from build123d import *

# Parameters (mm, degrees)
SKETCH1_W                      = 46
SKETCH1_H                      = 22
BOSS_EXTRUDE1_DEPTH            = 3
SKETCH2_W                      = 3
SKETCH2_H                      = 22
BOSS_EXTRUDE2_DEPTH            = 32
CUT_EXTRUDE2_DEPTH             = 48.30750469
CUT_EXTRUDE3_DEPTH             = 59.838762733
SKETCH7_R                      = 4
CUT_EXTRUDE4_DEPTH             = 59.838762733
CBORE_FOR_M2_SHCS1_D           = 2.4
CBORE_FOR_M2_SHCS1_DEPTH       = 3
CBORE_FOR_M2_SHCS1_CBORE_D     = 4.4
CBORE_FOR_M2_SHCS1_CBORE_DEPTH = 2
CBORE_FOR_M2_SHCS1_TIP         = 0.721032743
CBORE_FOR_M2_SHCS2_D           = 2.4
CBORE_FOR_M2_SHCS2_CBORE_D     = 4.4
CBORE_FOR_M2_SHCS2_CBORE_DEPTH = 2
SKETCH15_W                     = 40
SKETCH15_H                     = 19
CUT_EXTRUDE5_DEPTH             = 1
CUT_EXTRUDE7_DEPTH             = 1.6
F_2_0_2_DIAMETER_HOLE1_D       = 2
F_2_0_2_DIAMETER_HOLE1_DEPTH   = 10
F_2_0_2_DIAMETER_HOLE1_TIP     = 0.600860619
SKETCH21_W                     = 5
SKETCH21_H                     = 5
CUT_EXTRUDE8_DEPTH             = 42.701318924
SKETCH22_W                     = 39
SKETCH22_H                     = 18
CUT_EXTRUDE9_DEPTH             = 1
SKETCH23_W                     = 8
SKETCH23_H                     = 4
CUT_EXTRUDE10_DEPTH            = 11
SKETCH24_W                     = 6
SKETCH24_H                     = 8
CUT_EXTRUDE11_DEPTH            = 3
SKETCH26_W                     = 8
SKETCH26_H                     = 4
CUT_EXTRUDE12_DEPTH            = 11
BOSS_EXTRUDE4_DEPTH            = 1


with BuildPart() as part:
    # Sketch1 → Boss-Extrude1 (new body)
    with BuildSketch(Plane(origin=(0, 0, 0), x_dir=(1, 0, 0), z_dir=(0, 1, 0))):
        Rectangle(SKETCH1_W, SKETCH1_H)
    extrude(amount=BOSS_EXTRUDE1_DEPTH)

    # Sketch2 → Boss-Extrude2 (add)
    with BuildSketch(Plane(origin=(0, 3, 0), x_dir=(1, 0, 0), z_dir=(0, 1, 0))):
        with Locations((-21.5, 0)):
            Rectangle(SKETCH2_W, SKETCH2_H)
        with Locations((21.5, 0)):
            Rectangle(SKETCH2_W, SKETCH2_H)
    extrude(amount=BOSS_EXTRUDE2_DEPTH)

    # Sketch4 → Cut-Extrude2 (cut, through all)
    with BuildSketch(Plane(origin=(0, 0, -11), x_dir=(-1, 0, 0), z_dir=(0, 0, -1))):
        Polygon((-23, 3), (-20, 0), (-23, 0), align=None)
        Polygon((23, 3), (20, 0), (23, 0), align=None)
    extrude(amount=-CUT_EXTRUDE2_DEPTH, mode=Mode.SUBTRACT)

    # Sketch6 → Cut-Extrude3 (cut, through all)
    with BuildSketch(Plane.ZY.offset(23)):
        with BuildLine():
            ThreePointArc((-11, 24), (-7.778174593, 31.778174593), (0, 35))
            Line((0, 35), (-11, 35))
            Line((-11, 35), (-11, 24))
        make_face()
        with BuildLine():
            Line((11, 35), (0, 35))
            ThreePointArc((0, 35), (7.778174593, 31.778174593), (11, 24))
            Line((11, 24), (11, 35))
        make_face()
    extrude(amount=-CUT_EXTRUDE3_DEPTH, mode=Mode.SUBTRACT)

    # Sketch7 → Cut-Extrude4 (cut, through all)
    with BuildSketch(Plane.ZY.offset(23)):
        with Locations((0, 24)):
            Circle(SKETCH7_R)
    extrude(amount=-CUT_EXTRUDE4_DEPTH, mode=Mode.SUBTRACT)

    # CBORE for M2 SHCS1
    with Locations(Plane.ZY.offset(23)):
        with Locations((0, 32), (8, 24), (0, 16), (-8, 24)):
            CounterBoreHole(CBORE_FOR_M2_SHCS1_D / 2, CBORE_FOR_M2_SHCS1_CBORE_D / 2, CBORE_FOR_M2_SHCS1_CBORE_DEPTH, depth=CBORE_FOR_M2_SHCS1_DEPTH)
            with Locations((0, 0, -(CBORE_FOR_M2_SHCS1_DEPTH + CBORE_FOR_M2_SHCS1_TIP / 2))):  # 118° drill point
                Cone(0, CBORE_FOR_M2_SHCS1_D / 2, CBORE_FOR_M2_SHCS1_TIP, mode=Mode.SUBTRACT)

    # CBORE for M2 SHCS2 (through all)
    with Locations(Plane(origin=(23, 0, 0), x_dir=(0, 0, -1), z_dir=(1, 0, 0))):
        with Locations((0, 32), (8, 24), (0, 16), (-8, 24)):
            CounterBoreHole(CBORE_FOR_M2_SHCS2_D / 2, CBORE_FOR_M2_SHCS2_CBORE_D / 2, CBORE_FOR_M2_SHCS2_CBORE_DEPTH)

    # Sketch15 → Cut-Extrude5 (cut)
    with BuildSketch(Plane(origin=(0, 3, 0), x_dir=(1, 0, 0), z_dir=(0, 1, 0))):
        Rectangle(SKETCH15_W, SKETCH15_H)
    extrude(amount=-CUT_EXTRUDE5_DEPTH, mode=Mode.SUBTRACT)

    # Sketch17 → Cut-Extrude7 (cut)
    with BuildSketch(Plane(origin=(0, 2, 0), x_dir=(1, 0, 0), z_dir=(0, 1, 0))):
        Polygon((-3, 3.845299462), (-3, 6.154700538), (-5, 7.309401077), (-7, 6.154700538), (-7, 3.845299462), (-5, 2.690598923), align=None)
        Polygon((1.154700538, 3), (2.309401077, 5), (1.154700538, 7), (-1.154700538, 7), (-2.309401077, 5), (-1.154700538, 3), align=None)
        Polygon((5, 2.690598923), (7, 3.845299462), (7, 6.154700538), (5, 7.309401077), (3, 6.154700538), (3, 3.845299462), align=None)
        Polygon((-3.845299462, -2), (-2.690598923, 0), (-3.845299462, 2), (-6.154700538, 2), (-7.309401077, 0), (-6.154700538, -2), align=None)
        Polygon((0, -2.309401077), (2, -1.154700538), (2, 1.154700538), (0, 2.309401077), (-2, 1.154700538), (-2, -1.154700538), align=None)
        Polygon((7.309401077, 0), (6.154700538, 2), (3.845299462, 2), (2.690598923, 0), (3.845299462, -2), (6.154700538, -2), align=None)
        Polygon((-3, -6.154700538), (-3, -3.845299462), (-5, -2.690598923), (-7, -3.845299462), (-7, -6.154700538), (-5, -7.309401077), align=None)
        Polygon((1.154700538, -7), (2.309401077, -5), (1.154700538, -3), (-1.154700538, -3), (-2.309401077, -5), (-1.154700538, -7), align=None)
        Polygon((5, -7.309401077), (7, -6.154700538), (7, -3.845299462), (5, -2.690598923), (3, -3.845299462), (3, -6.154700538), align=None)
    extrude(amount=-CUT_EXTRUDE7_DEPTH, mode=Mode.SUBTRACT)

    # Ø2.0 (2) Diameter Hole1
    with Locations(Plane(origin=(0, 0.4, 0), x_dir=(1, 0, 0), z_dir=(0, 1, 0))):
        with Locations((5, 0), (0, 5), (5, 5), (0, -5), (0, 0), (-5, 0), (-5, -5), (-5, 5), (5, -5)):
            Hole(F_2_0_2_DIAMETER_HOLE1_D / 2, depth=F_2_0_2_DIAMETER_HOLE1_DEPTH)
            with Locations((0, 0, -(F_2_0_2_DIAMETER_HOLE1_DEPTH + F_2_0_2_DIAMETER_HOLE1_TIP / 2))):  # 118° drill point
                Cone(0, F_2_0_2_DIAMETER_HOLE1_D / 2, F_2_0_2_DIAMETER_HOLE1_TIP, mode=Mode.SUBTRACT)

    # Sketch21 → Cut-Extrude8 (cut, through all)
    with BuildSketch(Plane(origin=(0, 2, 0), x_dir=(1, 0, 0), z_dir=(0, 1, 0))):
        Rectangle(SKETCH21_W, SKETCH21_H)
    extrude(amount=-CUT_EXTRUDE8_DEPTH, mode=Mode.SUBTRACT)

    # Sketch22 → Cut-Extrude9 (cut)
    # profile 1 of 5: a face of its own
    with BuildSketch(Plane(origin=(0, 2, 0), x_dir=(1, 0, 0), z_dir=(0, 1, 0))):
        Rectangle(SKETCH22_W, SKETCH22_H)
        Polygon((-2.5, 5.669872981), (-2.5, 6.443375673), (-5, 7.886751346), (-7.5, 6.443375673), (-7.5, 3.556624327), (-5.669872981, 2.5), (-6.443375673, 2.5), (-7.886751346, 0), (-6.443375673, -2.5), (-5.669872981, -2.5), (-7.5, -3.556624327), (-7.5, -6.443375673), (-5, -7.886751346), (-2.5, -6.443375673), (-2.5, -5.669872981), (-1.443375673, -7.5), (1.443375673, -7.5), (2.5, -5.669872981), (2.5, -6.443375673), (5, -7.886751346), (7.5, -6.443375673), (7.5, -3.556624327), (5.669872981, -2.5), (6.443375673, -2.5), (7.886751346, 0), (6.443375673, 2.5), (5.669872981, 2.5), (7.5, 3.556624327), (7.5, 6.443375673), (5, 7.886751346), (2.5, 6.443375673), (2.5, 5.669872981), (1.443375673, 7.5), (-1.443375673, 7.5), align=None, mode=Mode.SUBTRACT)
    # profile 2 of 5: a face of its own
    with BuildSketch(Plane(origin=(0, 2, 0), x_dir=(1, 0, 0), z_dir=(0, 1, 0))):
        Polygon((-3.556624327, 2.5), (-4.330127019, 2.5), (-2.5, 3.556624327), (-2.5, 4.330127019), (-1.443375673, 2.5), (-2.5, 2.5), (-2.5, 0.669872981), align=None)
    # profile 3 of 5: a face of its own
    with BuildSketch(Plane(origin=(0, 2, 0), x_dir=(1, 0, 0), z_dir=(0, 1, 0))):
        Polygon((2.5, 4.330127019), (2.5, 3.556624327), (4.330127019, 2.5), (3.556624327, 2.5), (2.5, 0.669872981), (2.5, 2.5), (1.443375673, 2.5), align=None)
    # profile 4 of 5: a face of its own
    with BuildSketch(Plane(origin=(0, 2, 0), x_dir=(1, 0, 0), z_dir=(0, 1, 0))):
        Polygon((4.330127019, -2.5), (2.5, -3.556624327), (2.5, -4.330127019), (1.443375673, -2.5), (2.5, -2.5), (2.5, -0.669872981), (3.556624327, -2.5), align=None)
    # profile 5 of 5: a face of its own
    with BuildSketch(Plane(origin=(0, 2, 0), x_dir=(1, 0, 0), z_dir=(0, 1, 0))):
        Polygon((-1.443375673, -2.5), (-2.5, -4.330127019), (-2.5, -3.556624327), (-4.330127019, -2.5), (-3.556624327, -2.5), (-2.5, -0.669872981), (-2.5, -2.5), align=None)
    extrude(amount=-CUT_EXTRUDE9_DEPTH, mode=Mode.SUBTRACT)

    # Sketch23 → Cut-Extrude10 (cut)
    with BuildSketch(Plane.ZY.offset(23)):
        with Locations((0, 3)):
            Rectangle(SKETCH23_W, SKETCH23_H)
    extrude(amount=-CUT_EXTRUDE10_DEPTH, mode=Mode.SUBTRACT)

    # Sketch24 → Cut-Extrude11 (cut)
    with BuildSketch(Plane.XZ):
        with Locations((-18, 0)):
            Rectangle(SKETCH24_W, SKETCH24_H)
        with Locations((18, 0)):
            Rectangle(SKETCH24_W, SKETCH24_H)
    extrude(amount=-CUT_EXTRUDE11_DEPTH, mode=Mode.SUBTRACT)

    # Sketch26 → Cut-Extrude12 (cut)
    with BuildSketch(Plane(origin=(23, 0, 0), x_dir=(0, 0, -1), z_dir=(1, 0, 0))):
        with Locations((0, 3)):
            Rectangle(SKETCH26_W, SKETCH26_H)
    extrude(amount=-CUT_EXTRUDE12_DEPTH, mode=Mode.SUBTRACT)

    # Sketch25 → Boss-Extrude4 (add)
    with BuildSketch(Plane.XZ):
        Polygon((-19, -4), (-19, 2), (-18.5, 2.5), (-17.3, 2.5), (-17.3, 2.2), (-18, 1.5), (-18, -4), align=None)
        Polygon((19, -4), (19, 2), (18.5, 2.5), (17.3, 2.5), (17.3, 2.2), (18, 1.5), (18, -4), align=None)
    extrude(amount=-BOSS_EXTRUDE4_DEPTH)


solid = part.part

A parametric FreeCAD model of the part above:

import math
import FreeCAD as App
import Part
import Sketcher

V = App.Vector
Q = App.Units.Quantity


def add_polygon(sketch, points):
    """Adds a closed chain of lines whose ends are joined by coincident constraints."""
    first, n = sketch.GeometryCount, len(points)
    for a, b in zip(points, points[1:] + points[:1]):
        sketch.addGeometry(Part.LineSegment(App.Vector(*a, 0), App.Vector(*b, 0)), False)
    for i in range(n):
        sketch.addConstraint(Sketcher.Constraint("Coincident", first + i, 2, first + (i + 1) % n, 1))

doc = App.newDocument("Part")
body = doc.addObject("PartDesign::Body", "Body")

# Sketch on XZ plane
sketch1 = body.newObject("Sketcher::SketchObject", "Sketch")
sketch1.AttachmentSupport = (doc.getObject("XZ_Plane"), [""])
sketch1.MapMode = "FlatFace"
add_polygon(sketch1, [(-23, -11), (-23, 11), (23, 11), (23, -11)])  # lines 0-3
sketch1.addConstraint([
    Sketcher.Constraint("Vertical", 0),
    Sketcher.Constraint("Horizontal", 1),
    Sketcher.Constraint("Vertical", 2),
    Sketcher.Constraint("Horizontal", 3),
    Sketcher.Constraint("Symmetric", 0, 2, 2, 2, -1, 1),
    Sketcher.Constraint("DistanceX", 1, 1, 1, 2, Q("46 mm")),
    Sketcher.Constraint("DistanceY", 0, 1, 0, 2, Q("22 mm")),
])
pad1 = body.newObject("PartDesign::Pad", "Pad")
pad1.Profile = sketch1
pad1.Length = 3
pad1.Reversed = True

# Sketch on XZ plane
sketch2 = body.newObject("Sketcher::SketchObject", "Sketch001")
sketch2.AttachmentSupport = (doc.getObject("XZ_Plane"), [""])
sketch2.MapMode = "FlatFace"
sketch2.AttachmentOffset = App.Placement(V(0, 0, -3), App.Rotation())
add_polygon(sketch2, [(-23, -11), (-23, 11), (-20, 11), (-20, -11)])  # lines 0-3
add_polygon(sketch2, [(20, -11), (20, 11), (23, 11), (23, -11)])  # lines 4-7
sketch2.addConstraint([
    Sketcher.Constraint("Vertical", 0),
    Sketcher.Constraint("Horizontal", 1),
    Sketcher.Constraint("Vertical", 2),
    Sketcher.Constraint("Horizontal", 3),
    Sketcher.Constraint("Vertical", 4),
    Sketcher.Constraint("Horizontal", 5),
    Sketcher.Constraint("Vertical", 6),
    Sketcher.Constraint("Horizontal", 7),
    Sketcher.Constraint("Symmetric", 2, 2, 4, 2, -1, 1),
    Sketcher.Constraint("Symmetric", 0, 2, 6, 2, -1, 1),
    Sketcher.Constraint("Horizontal", 1, 2, 4, 2),
    Sketcher.Constraint("DistanceX", 1, 1, 1, 2, Q("3 mm")),
    Sketcher.Constraint("DistanceY", 0, 1, 0, 2, Q("22 mm")),
    Sketcher.Constraint("DistanceX", 0, 2, -1, 1, Q("23 mm")),
])
pad2 = body.newObject("PartDesign::Pad", "Pad001")
pad2.Profile = sketch2
pad2.Length = 32
pad2.Reversed = True

# Sketch on XY plane
sketch3 = body.newObject("Sketcher::SketchObject", "Sketch002")
sketch3.AttachmentSupport = (doc.getObject("XY_Plane"), [""])
sketch3.MapMode = "FlatFace"
sketch3.AttachmentOffset = App.Placement(V(0, 0, -11), App.Rotation())
add_polygon(sketch3, [(20, 0), (23, 3), (23, 0)])  # lines 0-2
add_polygon(sketch3, [(-23, 3), (-20, 0), (-23, 0)])  # lines 3-5
sketch3.addConstraint([
    Sketcher.Constraint("Vertical", 1),
    Sketcher.Constraint("Horizontal", 2),
    Sketcher.Constraint("Horizontal", 4),
    Sketcher.Constraint("Vertical", 5),
    Sketcher.Constraint("Symmetric", 2, 2, 3, 2, -1, 1),
    Sketcher.Constraint("Symmetric", 1, 2, 4, 2, -2),
    Sketcher.Constraint("Perpendicular", 0, 3),
    Sketcher.Constraint("Horizontal", 0, 2, 5, 2),
    Sketcher.Constraint("DistanceX", 2, 2, 2, 1, Q("3 mm")),
    Sketcher.Constraint("DistanceX", -1, 1, 0, 2, Q("23 mm")),
])
pocket1 = body.newObject("PartDesign::Pocket", "Pocket")
pocket1.Profile = sketch3
pocket1.Type = "ThroughAll"
pocket1.Reversed = True

# Sketch on YZ plane
sketch4 = body.newObject("Sketcher::SketchObject", "Sketch003")
sketch4.AttachmentSupport = (doc.getObject("YZ_Plane"), [""])
sketch4.MapMode = "FlatFace"
sketch4.AttachmentOffset = App.Placement(V(0, 0, -23), App.Rotation())
sketch4.addGeometry([
    Part.ArcOfCircle(Part.Circle(V(24, 0, 0), V(0, 0, 1), 11), math.radians(-90), math.radians(0)),  # 0
    Part.LineSegment(V(35, 0, 0), V(35, -11, 0)),  # 1
    Part.LineSegment(V(35, -11, 0), V(24, -11, 0)),  # 2
    Part.LineSegment(V(35, 11, 0), V(35, 0, 0)),  # 3
    Part.ArcOfCircle(Part.Circle(V(24, 0, 0), V(0, 0, 1), 11), math.radians(0), math.radians(90)),  # 4
    Part.LineSegment(V(24, 11, 0), V(35, 11, 0)),  # 5
], False)
sketch4.addConstraint([
    Sketcher.Constraint("Tangent", 0, 2, 1, 1),
    Sketcher.Constraint("Coincident", 1, 2, 2, 1),
    Sketcher.Constraint("Tangent", 2, 2, 0, 1),
    Sketcher.Constraint("Tangent", 3, 2, 4, 1),
    Sketcher.Constraint("Tangent", 4, 2, 5, 1),
    Sketcher.Constraint("Coincident", 5, 2, 3, 1),
    Sketcher.Constraint("Vertical", 1),
    Sketcher.Constraint("Horizontal", 2),
    Sketcher.Constraint("Vertical", 3),
    Sketcher.Constraint("Horizontal", 5),
    Sketcher.Constraint("Coincident", 4, 3, 0, 3),
    Sketcher.Constraint("Equal", 0, 4),
    Sketcher.Constraint("PointOnObject", 0, 3, -1),
    Sketcher.Constraint("Radius", 0, Q("11 mm")),
    Sketcher.Constraint("DistanceX", -1, 1, 0, 3, Q("24 mm")),
])
pocket2 = body.newObject("PartDesign::Pocket", "Pocket001")
pocket2.Profile = sketch4
pocket2.Type = "ThroughAll"
pocket2.Reversed = True

# Sketch on YZ plane
sketch5 = body.newObject("Sketcher::SketchObject", "Sketch004")
sketch5.AttachmentSupport = (doc.getObject("YZ_Plane"), [""])
sketch5.MapMode = "FlatFace"
sketch5.AttachmentOffset = App.Placement(V(0, 0, -23), App.Rotation())
sketch5.addGeometry(Part.Circle(V(24, 0, 0), V(0, 0, 1), 4), False)
sketch5.addConstraint([
    Sketcher.Constraint("PointOnObject", 0, 3, -1),
    Sketcher.Constraint("Diameter", 0, Q("8 mm")),
    Sketcher.Constraint("DistanceX", -1, 1, 0, 3, Q("24 mm")),
])
pocket3 = body.newObject("PartDesign::Pocket", "Pocket002")
pocket3.Profile = sketch5
pocket3.Type = "ThroughAll"
pocket3.Reversed = True

# Sketch on YZ plane
sketch6 = body.newObject("Sketcher::SketchObject", "Sketch005")
sketch6.AttachmentSupport = (doc.getObject("YZ_Plane"), [""])
sketch6.MapMode = "FlatFace"
sketch6.AttachmentOffset = App.Placement(V(0, 0, -23), App.Rotation())
sketch6.addGeometry([
    Part.Circle(V(32, 0, 0), V(0, 0, 1), 1.2),
    Part.Circle(V(24, 8, 0), V(0, 0, 1), 1.2),
    Part.Circle(V(16, 0, 0), V(0, 0, 1), 1.2),
    Part.Circle(V(24, -8, 0), V(0, 0, 1), 1.2),
], False)
sketch6.addConstraint([
    Sketcher.Constraint("Equal", 0, 1),
    Sketcher.Constraint("Equal", 1, 2),
    Sketcher.Constraint("Equal", 2, 3),
    Sketcher.Constraint("Symmetric", 1, 3, 3, 3, -1),
    Sketcher.Constraint("PointOnObject", 0, 3, -1),
    Sketcher.Constraint("PointOnObject", 2, 3, -1),
    Sketcher.Constraint("Diameter", 0, Q("2.4 mm")),
    Sketcher.Constraint("DistanceX", -1, 1, 0, 3, Q("32 mm")),
    Sketcher.Constraint("DistanceX", -1, 1, 1, 3, Q("24 mm")),
    Sketcher.Constraint("DistanceY", -1, 1, 1, 3, Q("8 mm")),
    Sketcher.Constraint("DistanceX", -1, 1, 2, 3, Q("16 mm")),
])
doc.recompute()
hole = body.newObject("PartDesign::Hole", "Hole")
hole.Profile = sketch6
hole.ThreadType = "None"
hole.Diameter = 2.4
hole.DepthType = "Dimension"
hole.Depth = 3
hole.DrillPoint = "Angled"
hole.DrillPointAngle = 118
hole.HoleCutType = "Counterbore"
hole.HoleCutDiameter = 4.4
hole.HoleCutDepth = 2
hole.Reversed = True

# Sketch on YZ plane
sketch7 = body.newObject("Sketcher::SketchObject", "Sketch006")
sketch7.AttachmentSupport = (doc.getObject("YZ_Plane"), [""])
sketch7.MapMode = "FlatFace"
sketch7.AttachmentOffset = App.Placement(V(0, 0, 23), App.Rotation())
sketch7.addGeometry([
    Part.Circle(V(32, 0, 0), V(0, 0, 1), 1.2),
    Part.Circle(V(24, -8, 0), V(0, 0, 1), 1.2),
    Part.Circle(V(16, 0, 0), V(0, 0, 1), 1.2),
    Part.Circle(V(24, 8, 0), V(0, 0, 1), 1.2),
], False)
sketch7.addConstraint([
    Sketcher.Constraint("Equal", 0, 1),
    Sketcher.Constraint("Equal", 1, 2),
    Sketcher.Constraint("Equal", 2, 3),
    Sketcher.Constraint("Symmetric", 1, 3, 3, 3, -1),
    Sketcher.Constraint("PointOnObject", 0, 3, -1),
    Sketcher.Constraint("PointOnObject", 2, 3, -1),
    Sketcher.Constraint("Diameter", 0, Q("2.4 mm")),
    Sketcher.Constraint("DistanceX", -1, 1, 0, 3, Q("32 mm")),
    Sketcher.Constraint("DistanceX", -1, 1, 1, 3, Q("24 mm")),
    Sketcher.Constraint("DistanceY", 1, 3, -1, 1, Q("8 mm")),
    Sketcher.Constraint("DistanceX", -1, 1, 2, 3, Q("16 mm")),
])
doc.recompute()
hole2 = body.newObject("PartDesign::Hole", "Hole001")
hole2.Profile = sketch7
hole2.ThreadType = "None"
hole2.Diameter = 2.4
hole2.DepthType = "ThroughAll"
hole2.HoleCutType = "Counterbore"
hole2.HoleCutDiameter = 4.4
hole2.HoleCutDepth = 2

# Sketch on XZ plane
sketch8 = body.newObject("Sketcher::SketchObject", "Sketch007")
sketch8.AttachmentSupport = (doc.getObject("XZ_Plane"), [""])
sketch8.MapMode = "FlatFace"
sketch8.AttachmentOffset = App.Placement(V(0, 0, -3), App.Rotation())
add_polygon(sketch8, [(-20, -10), (-20, 10), (20, 10), (20, -10)])  # lines 0-3
sketch8.addConstraint([
    Sketcher.Constraint("Vertical", 0),
    Sketcher.Constraint("Horizontal", 1),
    Sketcher.Constraint("Vertical", 2),
    Sketcher.Constraint("Horizontal", 3),
    Sketcher.Constraint("Symmetric", 0, 2, 2, 2, -1, 1),
    Sketcher.Constraint("DistanceX", 1, 1, 1, 2, Q("40 mm")),
    Sketcher.Constraint("DistanceY", 0, 1, 0, 2, Q("19 mm")),
])
pocket4 = body.newObject("PartDesign::Pocket", "Pocket003")
pocket4.Profile = sketch8
pocket4.Length = 1
pocket4.Reversed = True

# Sketch on XZ plane
sketch9 = body.newObject("Sketcher::SketchObject", "Sketch008")
sketch9.AttachmentSupport = (doc.getObject("XZ_Plane"), [""])
sketch9.MapMode = "FlatFace"
sketch9.AttachmentOffset = App.Placement(V(0, 0, -2), App.Rotation())
add_polygon(sketch9, [(-3, -3.8), (-3, -6.2), (-5, -7.3), (-7, -6.2), (-7, -3.8), (-5, -2.7)])  # lines 0-5
add_polygon(sketch9, [(1.2, -3), (2.3, -5), (1.2, -7), (-1.2, -7), (-2.3, -5), (-1.2, -3)])  # lines 6-11
add_polygon(sketch9, [(5, -2.7), (7, -3.8), (7, -6.2), (5, -7.3), (3, -6.2), (3, -3.8)])  # lines 12-17
add_polygon(sketch9, [(-3.8, 2), (-2.7, 0), (-3.8, -2), (-6.2, -2), (-7.3, 0), (-6.2, 2)])  # lines 18-23
add_polygon(sketch9, [(0, 2.3), (2, 1.2), (2, -1.2), (0, -2.3), (-2, -1.2), (-2, 1.2)])  # lines 24-29
add_polygon(sketch9, [(7.3, 0), (6.2, -2), (3.8, -2), (2.7, 0), (3.8, 2), (6.2, 2)])  # lines 30-35
add_polygon(sketch9, [(-3, 6.2), (-3, 3.8), (-5, 2.7), (-7, 3.8), (-7, 6.2), (-5, 7.3)])  # lines 36-41
add_polygon(sketch9, [(1.2, 7), (2.3, 5), (1.2, 3), (-1.2, 3), (-2.3, 5), (-1.2, 7)])  # lines 42-47
add_polygon(sketch9, [(5, 7.3), (7, 6.2), (7, 3.8), (5, 2.7), (3, 3.8), (3, 6.2)])  # lines 48-53
sketch9.addConstraint([
    Sketcher.Constraint("Vertical", 0),
    Sketcher.Constraint("Vertical", 3),
    Sketcher.Constraint("Horizontal", 8),
    Sketcher.Constraint("Horizontal", 11),
    Sketcher.Constraint("Vertical", 13),
    Sketcher.Constraint("Vertical", 16),
    Sketcher.Constraint("Horizontal", 20),
    Sketcher.Constraint("Horizontal", 23),
    Sketcher.Constraint("Vertical", 25),
    Sketcher.Constraint("Vertical", 28),
    Sketcher.Constraint("Horizontal", 31),
    Sketcher.Constraint("Horizontal", 34),
    Sketcher.Constraint("Vertical", 36),
    Sketcher.Constraint("Vertical", 39),
    Sketcher.Constraint("Horizontal", 44),
    Sketcher.Constraint("Horizontal", 47),
    Sketcher.Constraint("Vertical", 49),
    Sketcher.Constraint("Vertical", 52),
    Sketcher.Constraint("Symmetric", 24, 2, 27, 2, -1, 1),
    Sketcher.Constraint("Symmetric", 26, 2, 29, 2, -1, 1),
    Sketcher.Constraint("Symmetric", 22, 2, 30, 2, -1, 1),
    Sketcher.Constraint("Symmetric", 18, 2, 32, 2, -1, 1),
    Sketcher.Constraint("Symmetric", 19, 2, 33, 2, -1, 1),
    Sketcher.Constraint("Symmetric", 21, 2, 35, 2, -1, 1),
    Sketcher.Constraint("Symmetric", 16, 2, 36, 2, -1, 1),
    Sketcher.Constraint("Symmetric", 17, 2, 37, 2, -1, 1),
    Sketcher.Constraint("Symmetric", 12, 2, 38, 2, -1, 1),
    Sketcher.Constraint("Symmetric", 14, 2, 40, 2, -1, 1),
    Sketcher.Constraint("Symmetric", 9, 2, 42, 2, -1, 1),
    Sketcher.Constraint("Symmetric", 10, 2, 43, 2, -1, 1),
    Sketcher.Constraint("Symmetric", 6, 2, 45, 2, -1, 1),
    Sketcher.Constraint("Symmetric", 7, 2, 46, 2, -1, 1),
    Sketcher.Constraint("Symmetric", 2, 2, 48, 2, -1, 1),
    Sketcher.Constraint("Symmetric", 4, 2, 50, 2, -1, 1),
    Sketcher.Constraint("Symmetric", 5, 2, 51, 2, -1, 1),
    Sketcher.Constraint("Symmetric", 1, 2, 53, 2, -1, 1),
    Sketcher.Constraint("Symmetric", 6, 2, 9, 2, -2),
    Sketcher.Constraint("Symmetric", 3, 2, 12, 2, -2),
    Sketcher.Constraint("Symmetric", 1, 2, 14, 2, -2),
    Sketcher.Constraint("Symmetric", 0, 2, 15, 2, -2),
    Sketcher.Constraint("Symmetric", 4, 2, 17, 2, -2),
    Sketcher.Constraint("Symmetric", 20, 2, 30, 2, -2),
    Sketcher.Constraint("PointOnObject", 18, 2, -1),
    Sketcher.Constraint("PointOnObject", 21, 2, -1),
    Sketcher.Constraint("PointOnObject", 26, 2, -2),
    Sketcher.Constraint("Parallel", 1, 4),
    Sketcher.Constraint("Parallel", 2, 5),
    Sketcher.Constraint("Perpendicular", 4, 6),
    Sketcher.Constraint("Perpendicular", 5, 7),
    Sketcher.Constraint("Parallel", 6, 9),
    Sketcher.Constraint("Parallel", 7, 10),
    Sketcher.Constraint("Perpendicular", 10, 12),
    Sketcher.Constraint("Perpendicular", 9, 14),
    Sketcher.Constraint("Parallel", 14, 17),
    Sketcher.Constraint("Perpendicular", 17, 18),
    Sketcher.Constraint("Perpendicular", 15, 19),
    Sketcher.Constraint("Parallel", 18, 21),
    Sketcher.Constraint("Perpendicular", 22, 24),
    Sketcher.Constraint("Perpendicular", 21, 26),
    Sketcher.Constraint("Parallel", 26, 29),
    Sketcher.Constraint("Perpendicular", 29, 32),
    Sketcher.Constraint("Parallel", 32, 35),
    Sketcher.Constraint("Parallel", 37, 40),
    Sketcher.Constraint("Parallel", 38, 41),
    Sketcher.Constraint("Perpendicular", 40, 42),
    Sketcher.Constraint("Parallel", 42, 45),
    Sketcher.Constraint("Perpendicular", 45, 50),
    Sketcher.Constraint("Parallel", 50, 53),
    Sketcher.Constraint("Horizontal", 0, 2, 2, 2),
    Sketcher.Constraint("Horizontal", 3, 2, 5, 2),
    Sketcher.Constraint("Vertical", 8, 2, 10, 2),
    Sketcher.Constraint("Equal", 11, 20),
    Sketcher.Constraint("Equal", 47, 0),
    Sketcher.Constraint("Equal", 16, 25),
    Sketcher.Constraint("Equal", 5, 6),
    Sketcher.Constraint("Equal", 17, 18),
    Sketcher.Constraint("Equal", 22, 24),
    Sketcher.Constraint("Angle", 1, Q("-150 deg")),
    Sketcher.Constraint("DistanceX", 0, 2, -1, 1, Q("3 mm")),
    Sketcher.Constraint("DistanceX", 1, 2, -1, 1, Q("5 mm")),
    Sketcher.Constraint("DistanceY", 6, 2, -1, 1, Q("5 mm")),
    Sketcher.Constraint("DistanceY", 16, 2, 24, 2, Q("5 mm")),
    Sketcher.Constraint("DistanceX", 8, 2, 8, 1, Q("2.309401 mm")),
    Sketcher.Constraint("DistanceX", 18, 2, -1, 1, Q("2.690599 mm")),
])
pocket5 = body.newObject("PartDesign::Pocket", "Pocket004")
pocket5.Profile = sketch9
pocket5.Length = 1.6
pocket5.Reversed = True

# Sketch on XZ plane
sketch10 = body.newObject("Sketcher::SketchObject", "Sketch009")
sketch10.AttachmentSupport = (doc.getObject("XZ_Plane"), [""])
sketch10.MapMode = "FlatFace"
sketch10.AttachmentOffset = App.Placement(V(0, 0, -0.4), App.Rotation())
sketch10.addGeometry([
    Part.Circle(V(5, 0, 0), V(0, 0, 1), 1),  # 0
    Part.Circle(V(0, -5, 0), V(0, 0, 1), 1),  # 1
    Part.Circle(V(5, -5, 0), V(0, 0, 1), 1),  # 2
    Part.Circle(V(0, 5, 0), V(0, 0, 1), 1),  # 3
    Part.Circle(V(0, 0, 0), V(0, 0, 1), 1),  # 4
    Part.Circle(V(-5, 0, 0), V(0, 0, 1), 1),  # 5
    Part.Circle(V(-5, 5, 0), V(0, 0, 1), 1),  # 6
    Part.Circle(V(-5, -5, 0), V(0, 0, 1), 1),  # 7
    Part.Circle(V(5, 5, 0), V(0, 0, 1), 1),  # 8
], False)
sketch10.addConstraint([
    Sketcher.Constraint("Coincident", 4, 3, -1, 1),
    Sketcher.Constraint("Equal", 0, 1),
    Sketcher.Constraint("Equal", 1, 2),
    Sketcher.Constraint("Equal", 2, 3),
    Sketcher.Constraint("Equal", 3, 4),
    Sketcher.Constraint("Equal", 4, 5),
    Sketcher.Constraint("Equal", 5, 6),
    Sketcher.Constraint("Equal", 6, 7),
    Sketcher.Constraint("Equal", 7, 8),
    Sketcher.Constraint("Symmetric", 1, 3, 3, 3, -1, 1),
    Sketcher.Constraint("Symmetric", 0, 3, 5, 3, -1, 1),
    Sketcher.Constraint("Symmetric", 2, 3, 6, 3, -1, 1),
    Sketcher.Constraint("Symmetric", 7, 3, 8, 3, -1, 1),
    Sketcher.Constraint("Symmetric", 2, 3, 7, 3, -2),
    Sketcher.Constraint("PointOnObject", 0, 3, -1),
    Sketcher.Constraint("PointOnObject", 1, 3, -2),
    Sketcher.Constraint("Horizontal", 1, 3, 2, 3),
    Sketcher.Constraint("Vertical", 0, 3, 2, 3),
    Sketcher.Constraint("Diameter", 0, Q("2 mm")),
    Sketcher.Constraint("DistanceX", -1, 1, 0, 3, Q("5 mm")),
    Sketcher.Constraint("DistanceY", 1, 3, -1, 1, Q("5 mm")),
])
doc.recompute()
hole3 = body.newObject("PartDesign::Hole", "Hole002")
hole3.Profile = sketch10
hole3.ThreadType = "None"
hole3.Diameter = 2
hole3.DepthType = "Dimension"
hole3.Depth = 10
hole3.DrillPoint = "Angled"
hole3.DrillPointAngle = 118
hole3.Reversed = True

# Sketch on XZ plane
sketch11 = body.newObject("Sketcher::SketchObject", "Sketch010")
sketch11.AttachmentSupport = (doc.getObject("XZ_Plane"), [""])
sketch11.MapMode = "FlatFace"
sketch11.AttachmentOffset = App.Placement(V(0, 0, -2), App.Rotation())
add_polygon(sketch11, [(-2, -2), (-2, 2), (2, 2), (2, -2)])  # lines 0-3
sketch11.addConstraint([
    Sketcher.Constraint("Vertical", 0),
    Sketcher.Constraint("Horizontal", 1),
    Sketcher.Constraint("Vertical", 2),
    Sketcher.Constraint("Horizontal", 3),
    Sketcher.Constraint("Symmetric", 0, 2, 2, 2, -1, 1),
    Sketcher.Constraint("Equal", 3, 0),
    Sketcher.Constraint("DistanceX", 1, 1, 1, 2, Q("5 mm")),
])
pocket6 = body.newObject("PartDesign::Pocket", "Pocket005")
pocket6.Profile = sketch11
pocket6.Type = "ThroughAll"
pocket6.Reversed = True

# Sketch on XZ plane
sketch12 = body.newObject("Sketcher::SketchObject", "Sketch011")
sketch12.AttachmentSupport = (doc.getObject("XZ_Plane"), [""])
sketch12.MapMode = "FlatFace"
sketch12.AttachmentOffset = App.Placement(V(0, 0, -2), App.Rotation())
add_polygon(sketch12, [(-19.5, -9), (-19.5, 9), (19.5, 9), (19.5, -9)])  # lines 0-3
add_polygon(sketch12, [(-2.5, -6.4), (-2.5, -5.7), (-1.4, -7.5), (1.4, -7.5), (2.5, -5.7), (2.5, -6.4), (5, -7.9), (7.5, -6.4), (7.5, -3.6), (5.7, -2.5), (6.4, -2.5), (7.9, 0), (6.4, 2.5), (5.7, 2.5), (7.5, 3.6), (7.5, 6.4), (5, 7.9), (2.5, 6.4), (2.5, 5.7), (1.4, 7.5), (-1.4, 7.5), (-2.5, 5.7), (-2.5, 6.4), (-5, 7.9), (-7.5, 6.4), (-7.5, 3.6), (-5.7, 2.5), (-6.4, 2.5), (-7.9, 0), (-6.4, -2.5), (-5.7, -2.5), (-7.5, -3.6), (-7.5, -6.4), (-5, -7.9)])  # lines 4-37
add_polygon(sketch12, [(-4.3, -2.5), (-3.6, -2.5), (-2.5, -0.7), (-2.5, -2.5), (-1.4, -2.5), (-2.5, -4.3), (-2.5, -3.6)])  # lines 38-44
add_polygon(sketch12, [(2.5, -3.6), (2.5, -4.3), (1.4, -2.5), (2.5, -2.5), (2.5, -0.7), (3.6, -2.5), (4.3, -2.5)])  # lines 45-51
add_polygon(sketch12, [(2.5, 3.6), (4.3, 2.5), (3.6, 2.5), (2.5, 0.7), (2.5, 2.5), (1.4, 2.5), (2.5, 4.3)])  # lines 52-58
add_polygon(sketch12, [(-2.5, 4.3), (-1.4, 2.5), (-2.5, 2.5), (-2.5, 0.7), (-3.6, 2.5), (-4.3, 2.5), (-2.5, 3.6)])  # lines 59-65
sketch12.addConstraint([
    Sketcher.Constraint("Vertical", 0),
    Sketcher.Constraint("Horizontal", 1),
    Sketcher.Constraint("Vertical", 2),
    Sketcher.Constraint("Horizontal", 3),
    Sketcher.Constraint("Vertical", 4),
    Sketcher.Constraint("Horizontal", 6),
    Sketcher.Constraint("Vertical", 8),
    Sketcher.Constraint("Vertical", 11),
    Sketcher.Constraint("Horizontal", 13),
    Sketcher.Constraint("Horizontal", 16),
    Sketcher.Constraint("Vertical", 18),
    Sketcher.Constraint("Vertical", 21),
    Sketcher.Constraint("Horizontal", 23),
    Sketcher.Constraint("Vertical", 25),
    Sketcher.Constraint("Vertical", 28),
    Sketcher.Constraint("Horizontal", 30),
    Sketcher.Constraint("Horizontal", 33),
    Sketcher.Constraint("Vertical", 35),
    Sketcher.Constraint("Horizontal", 38),
    Sketcher.Constraint("Vertical", 40),
    Sketcher.Constraint("Horizontal", 41),
    Sketcher.Constraint("Vertical", 43),
    Sketcher.Constraint("Vertical", 45),
    Sketcher.Constraint("Horizontal", 47),
    Sketcher.Constraint("Vertical", 48),
    Sketcher.Constraint("Horizontal", 50),
    Sketcher.Constraint("Horizontal", 53),
    Sketcher.Constraint("Vertical", 55),
    Sketcher.Constraint("Horizontal", 56),
    Sketcher.Constraint("Vertical", 58),
    Sketcher.Constraint("Horizontal", 60),
    Sketcher.Constraint("Vertical", 61),
    Sketcher.Constraint("Horizontal", 63),
    Sketcher.Constraint("Vertical", 65),
    Sketcher.Constraint("Symmetric", 0, 2, 2, 2, -1, 1),
    Sketcher.Constraint("Symmetric", 4, 2, 21, 2, -1, 1),
    Sketcher.Constraint("Symmetric", 5, 2, 22, 2, -1, 1),
    Sketcher.Constraint("Symmetric", 7, 2, 24, 2, -1, 1),
    Sketcher.Constraint("Symmetric", 9, 2, 26, 2, -1, 1),
    Sketcher.Constraint("Symmetric", 10, 2, 27, 2, -1, 1),
    Sketcher.Constraint("Symmetric", 12, 2, 29, 2, -1, 1),
    Sketcher.Constraint("Symmetric", 14, 2, 31, 2, -1, 1),
    Sketcher.Constraint("Symmetric", 15, 2, 32, 2, -1, 1),
    Sketcher.Constraint("Symmetric", 17, 2, 34, 2, -1, 1),
    Sketcher.Constraint("Symmetric", 19, 2, 36, 2, -1, 1),
    Sketcher.Constraint("Symmetric", 44, 2, 52, 2, -1, 1),
    Sketcher.Constraint("Symmetric", 39, 2, 54, 2, -1, 1),
    Sketcher.Constraint("Symmetric", 41, 2, 56, 2, -1, 1),
    Sketcher.Constraint("Symmetric", 42, 2, 57, 2, -1, 1),
    Sketcher.Constraint("Symmetric", 46, 2, 59, 2, -1, 1),
    Sketcher.Constraint("Symmetric", 48, 2, 61, 2, -1, 1),
    Sketcher.Constraint("Symmetric", 49, 2, 62, 2, -1, 1),
    Sketcher.Constraint("Symmetric", 51, 2, 64, 2, -1, 1),
    Sketcher.Constraint("Symmetric", 4, 2, 7, 2, -2),
    Sketcher.Constraint("Symmetric", 19, 2, 26, 2, -2),
    Sketcher.Constraint("Symmetric", 18, 2, 27, 2, -2),
    Sketcher.Constraint("Symmetric", 16, 2, 29, 2, -2),
    Sketcher.Constraint("Symmetric", 42, 2, 45, 2, -2),
    Sketcher.Constraint("Symmetric", 41, 2, 46, 2, -2),
    Sketcher.Constraint("Symmetric", 39, 2, 48, 2, -2),
    Sketcher.Constraint("Symmetric", 38, 2, 49, 2, -2),
    Sketcher.Constraint("PointOnObject", 14, 2, -1),
    Sketcher.Constraint("Perpendicular", 7, 9),
    Sketcher.Constraint("Perpendicular", 5, 10),
    Sketcher.Constraint("Parallel", 9, 12),
    Sketcher.Constraint("Perpendicular", 12, 14),
    Sketcher.Constraint("Perpendicular", 10, 15),
    Sketcher.Constraint("Perpendicular", 15, 17),
    Sketcher.Constraint("Perpendicular", 14, 19),
    Sketcher.Constraint("Parallel", 17, 20),
    Sketcher.Constraint("Perpendicular", 19, 24),
    Sketcher.Constraint("Perpendicular", 24, 26),
    Sketcher.Constraint("Parallel", 26, 29),
    Sketcher.Constraint("Perpendicular", 29, 31),
    Sketcher.Constraint("Perpendicular", 32, 34),
    Sketcher.Constraint("Perpendicular", 31, 36),
    Sketcher.Constraint("Parallel", 34, 37),
    Sketcher.Constraint("Perpendicular", 36, 39),
    Sketcher.Constraint("Parallel", 39, 42),
    Sketcher.Constraint("Perpendicular", 42, 44),
    Sketcher.Constraint("Perpendicular", 49, 51),
    Sketcher.Constraint("Parallel", 44, 52),
    Sketcher.Constraint("Perpendicular", 52, 54),
    Sketcher.Constraint("Perpendicular", 51, 59),
    Sketcher.Constraint("Perpendicular", 62, 64),
    Sketcher.Constraint("Horizontal", 8, 2, 10, 2),
    Sketcher.Constraint("Horizontal", 33, 2, 38, 2),
    Sketcher.Constraint("Horizontal", 38, 2, 40, 2),
    Sketcher.Constraint("Horizontal", 34, 2, 43, 2),
    Sketcher.Constraint("Horizontal", 43, 2, 51, 2),
    Sketcher.Constraint("Vertical", 37, 2, 39, 2),
    Sketcher.Constraint("Vertical", 23, 2, 41, 2),
    Sketcher.Constraint("Vertical", 40, 2, 42, 2),
    Sketcher.Constraint("Equal", 33, 38),
    Sketcher.Constraint("Equal", 63, 4),
    Sketcher.Constraint("Equal", 23, 11),
    Sketcher.Constraint("Equal", 25, 43),
    Sketcher.Constraint("Equal", 7, 12),
    Sketcher.Constraint("Equal", 10, 14),
    Sketcher.Constraint("DistanceX", 1, 1, 1, 2, Q("39 mm")),
    Sketcher.Constraint("DistanceY", 0, 1, 0, 2, Q("18 mm")),
    Sketcher.Constraint("Angle", 5, Q("-60 deg")),
    Sketcher.Constraint("DistanceX", -1, 1, 9, 2, Q("5 mm")),
    Sketcher.Constraint("DistanceX", 4, 2, -1, 1, Q("2.5 mm")),
    Sketcher.Constraint("DistanceX", 6, 1, 6, 2, Q("2.886751 mm")),
])
pocket7 = body.newObject("PartDesign::Pocket", "Pocket006")
pocket7.Profile = sketch12
pocket7.Length = 1
pocket7.Reversed = True

# Sketch on YZ plane
sketch13 = body.newObject("Sketcher::SketchObject", "Sketch012")
sketch13.AttachmentSupport = (doc.getObject("YZ_Plane"), [""])
sketch13.MapMode = "FlatFace"
sketch13.AttachmentOffset = App.Placement(V(0, 0, -23), App.Rotation())
add_polygon(sketch13, [(5, -4), (1, -4), (1, 4), (5, 4)])  # lines 0-3
sketch13.addConstraint([
    Sketcher.Constraint("Horizontal", 0),
    Sketcher.Constraint("Vertical", 1),
    Sketcher.Constraint("Horizontal", 2),
    Sketcher.Constraint("Vertical", 3),
    Sketcher.Constraint("DistanceX", 0, 2, 0, 1, Q("4 mm")),
    Sketcher.Constraint("DistanceY", 1, 1, 1, 2, Q("8 mm")),
    Sketcher.Constraint("DistanceX", -1, 1, 0, 2, Q("1 mm")),
    Sketcher.Constraint("DistanceY", 0, 2, -1, 1, Q("4 mm")),
])
pocket8 = body.newObject("PartDesign::Pocket", "Pocket007")
pocket8.Profile = sketch13
pocket8.Length = 11
pocket8.Reversed = True

# Sketch on XZ plane
sketch14 = body.newObject("Sketcher::SketchObject", "Sketch013")
sketch14.AttachmentSupport = (doc.getObject("XZ_Plane"), [""])
sketch14.MapMode = "FlatFace"
add_polygon(sketch14, [(-21, 4), (-21, -4), (-15, -4), (-15, 4)])  # lines 0-3
add_polygon(sketch14, [(15, 4), (15, -4), (21, -4), (21, 4)])  # lines 4-7
sketch14.addConstraint([
    Sketcher.Constraint("Vertical", 0),
    Sketcher.Constraint("Horizontal", 1),
    Sketcher.Constraint("Vertical", 2),
    Sketcher.Constraint("Horizontal", 3),
    Sketcher.Constraint("Vertical", 4),
    Sketcher.Constraint("Horizontal", 5),
    Sketcher.Constraint("Vertical", 6),
    Sketcher.Constraint("Horizontal", 7),
    Sketcher.Constraint("Symmetric", 2, 2, 4, 2, -1, 1),
    Sketcher.Constraint("Symmetric", 0, 2, 6, 2, -1, 1),
    Sketcher.Constraint("Horizontal", 1, 2, 4, 2),
    Sketcher.Constraint("DistanceX", 1, 1, 1, 2, Q("6 mm")),
    Sketcher.Constraint("DistanceY", 0, 2, 0, 1, Q("8 mm")),
    Sketcher.Constraint("DistanceX", 0, 2, -1, 1, Q("21 mm")),
])
pocket9 = body.newObject("PartDesign::Pocket", "Pocket008")
pocket9.Profile = sketch14
pocket9.Length = 3

# Sketch on YZ plane
sketch15 = body.newObject("Sketcher::SketchObject", "Sketch014")
sketch15.AttachmentSupport = (doc.getObject("YZ_Plane"), [""])
sketch15.MapMode = "FlatFace"
sketch15.AttachmentOffset = App.Placement(V(0, 0, 23), App.Rotation())
add_polygon(sketch15, [(5, 4), (1, 4), (1, -4), (5, -4)])  # lines 0-3
sketch15.addConstraint([
    Sketcher.Constraint("Horizontal", 0),
    Sketcher.Constraint("Vertical", 1),
    Sketcher.Constraint("Horizontal", 2),
    Sketcher.Constraint("Vertical", 3),
    Sketcher.Constraint("DistanceX", 0, 2, 0, 1, Q("4 mm")),
    Sketcher.Constraint("DistanceY", 1, 2, 1, 1, Q("8 mm")),
    Sketcher.Constraint("DistanceX", -1, 1, 0, 2, Q("1 mm")),
    Sketcher.Constraint("DistanceY", -1, 1, 0, 2, Q("4 mm")),
])
pocket10 = body.newObject("PartDesign::Pocket", "Pocket009")
pocket10.Profile = sketch15
pocket10.Length = 11

# Sketch on XZ plane
sketch16 = body.newObject("Sketcher::SketchObject", "Sketch015")
sketch16.AttachmentSupport = (doc.getObject("XZ_Plane"), [""])
sketch16.MapMode = "FlatFace"
add_polygon(sketch16, [(-19, 2), (-19, -4), (-18, -4), (-18, 1.5), (-17.3, 2.2), (-17.3, 2.5), (-18.5, 2.5)])  # lines 0-6
add_polygon(sketch16, [(19, -4), (19, 2), (18.5, 2.5), (17.3, 2.5), (17.3, 2.2), (18, 1.5), (18, -4)])  # lines 7-13
sketch16.addConstraint([
    Sketcher.Constraint("Vertical", 0),
    Sketcher.Constraint("Horizontal", 1),
    Sketcher.Constraint("Vertical", 2),
    Sketcher.Constraint("Vertical", 4),
    Sketcher.Constraint("Horizontal", 5),
    Sketcher.Constraint("Vertical", 7),
    Sketcher.Constraint("Horizontal", 9),
    Sketcher.Constraint("Vertical", 10),
    Sketcher.Constraint("Vertical", 12),
    Sketcher.Constraint("Horizontal", 13),
    Sketcher.Constraint("Symmetric", 6, 2, 7, 2, -2),
    Sketcher.Constraint("Symmetric", 5, 2, 8, 2, -2),
    Sketcher.Constraint("Symmetric", 3, 2, 10, 2, -2),
    Sketcher.Constraint("Symmetric", 2, 2, 11, 2, -2),
    Sketcher.Constraint("Parallel", 3, 6),
    Sketcher.Constraint("Perpendicular", 6, 8),
    Sketcher.Constraint("Horizontal", 1, 2, 12, 2),
    Sketcher.Constraint("DistanceX", 1, 1, 1, 2, Q("1 mm")),
    Sketcher.Constraint("DistanceY", 0, 2, 0, 1, Q("6 mm")),
    Sketcher.Constraint("DistanceX", 5, 2, 5, 1, Q("1.2 mm")),
    Sketcher.Constraint("DistanceY", 2, 1, 2, 2, Q("5.5 mm")),
    Sketcher.Constraint("DistanceX", 0, 2, -1, 1, Q("19 mm")),
    Sketcher.Constraint("DistanceY", 0, 2, -1, 1, Q("4 mm")),
    Sketcher.Constraint("DistanceY", 2, 2, 4, 2, Q("1 mm")),
])
pad3 = body.newObject("PartDesign::Pad", "Pad002")
pad3.Profile = sketch16
pad3.Length = 1
pad3.Reversed = True

doc.recompute()
